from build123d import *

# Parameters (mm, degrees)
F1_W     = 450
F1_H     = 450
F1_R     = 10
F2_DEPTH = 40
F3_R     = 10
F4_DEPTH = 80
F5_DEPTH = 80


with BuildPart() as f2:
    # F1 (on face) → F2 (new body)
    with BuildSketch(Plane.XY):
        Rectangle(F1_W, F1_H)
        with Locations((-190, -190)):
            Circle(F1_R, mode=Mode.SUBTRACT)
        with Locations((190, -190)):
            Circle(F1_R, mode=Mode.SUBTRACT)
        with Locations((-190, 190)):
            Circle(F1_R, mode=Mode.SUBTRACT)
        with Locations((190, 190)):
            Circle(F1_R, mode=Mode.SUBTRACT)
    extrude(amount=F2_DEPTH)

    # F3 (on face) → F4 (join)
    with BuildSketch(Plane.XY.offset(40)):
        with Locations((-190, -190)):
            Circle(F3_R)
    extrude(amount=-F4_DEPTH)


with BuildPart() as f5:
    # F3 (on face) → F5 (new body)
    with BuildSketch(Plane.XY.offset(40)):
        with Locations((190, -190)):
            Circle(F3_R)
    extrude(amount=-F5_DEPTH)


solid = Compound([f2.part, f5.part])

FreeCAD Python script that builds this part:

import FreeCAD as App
import Part
import Sketcher

doc = App.newDocument("Part")
params = doc.addObject("Spreadsheet::Sheet", "Params")
for row, (alias, value) in enumerate([
    ("sketch1_diameter", "20 mm"),
    ("sketch1_width", "450 mm"),
    ("pad1_length", "40 mm"),
    ("sketch2_diameter", "20 mm"),
    ("pad2_length", "80 mm"),
    ("sketch3_diameter", "20 mm"),
    ("pad3_length", "80 mm"),
], start=1):
    params.set(f"A{row}", alias)
    params.set(f"B{row}", "=" + value)
    params.setAlias(f"B{row}", alias)

body = doc.addObject("PartDesign::Body", "Body")

# Sketch on XY plane
sketch1 = body.newObject("Sketcher::SketchObject", "Sketch")
sketch1.AttachmentSupport = (doc.getObject("XY_Plane"), [""])
sketch1.MapMode = "FlatFace"
sketch1.addGeometry([
    Part.LineSegment(App.Vector(-225, 225, 0), App.Vector(-225, -225, 0)),  # 0
    Part.LineSegment(App.Vector(-225, -225, 0), App.Vector(225, -225, 0)),  # 1
    Part.LineSegment(App.Vector(225, -225, 0), App.Vector(225, 225, 0)),  # 2
    Part.LineSegment(App.Vector(225, 225, 0), App.Vector(-225, 225, 0)),  # 3
    Part.Circle(App.Vector(-190, -190, 0), App.Vector(0, 0, 1), 10),  # 4
    Part.Circle(App.Vector(190, -190, 0), App.Vector(0, 0, 1), 10),  # 5
    Part.Circle(App.Vector(-190, 190, 0), App.Vector(0, 0, 1), 10),  # 6
    Part.Circle(App.Vector(190, 190, 0), App.Vector(0, 0, 1), 10),  # 7
], False)
sketch1.addConstraint([
    Sketcher.Constraint("Coincident", 0, 2, 1, 1),
    Sketcher.Constraint("Coincident", 1, 2, 2, 1),
    Sketcher.Constraint("Coincident", 2, 2, 3, 1),
    Sketcher.Constraint("Coincident", 3, 2, 0, 1),
    Sketcher.Constraint("Vertical", 0),
    Sketcher.Constraint("Horizontal", 1),
    Sketcher.Constraint("Vertical", 2),
    Sketcher.Constraint("Horizontal", 3),
    Sketcher.Constraint("Equal", 4, 5),
    Sketcher.Constraint("Equal", 5, 6),
    Sketcher.Constraint("Equal", 6, 7),
    Sketcher.Constraint("Symmetric", 5, 3, 6, 3, -1, 1),
    Sketcher.Constraint("Symmetric", 4, 3, 7, 3, -1, 1),
    Sketcher.Constraint("Symmetric", 0, 2, 2, 2, -1, 1),
    Sketcher.Constraint("Symmetric", 4, 3, 5, 3, -2),
    Sketcher.Constraint("Equal", 3, 0),
    Sketcher.Constraint("Diameter", 4, 20.0),
    Sketcher.Constraint("DistanceX", 1, 1, 1, 2, 450.0),
    Sketcher.Constraint("DistanceX", 4, 3, -1, 1, 190.0),
    Sketcher.Constraint("DistanceY", 4, 3, -1, 1, 190.0),
])
sketch1.setExpression("Constraints[16]", "Params.sketch1_diameter")
sketch1.setExpression("Constraints[17]", "Params.sketch1_width")
pad1 = body.newObject("PartDesign::Pad", "Pad")
pad1.Profile = sketch1
pad1.setExpression("Length", "Params.pad1_length")

# Sketch on XY plane
sketch2 = body.newObject("Sketcher::SketchObject", "Sketch001")
sketch2.AttachmentSupport = (doc.getObject("XY_Plane"), [""])
sketch2.MapMode = "FlatFace"
sketch2.AttachmentOffset = App.Placement(App.Vector(0, 0, 40), App.Rotation())
sketch2.addGeometry(Part.Circle(App.Vector(-190, -190, 0), App.Vector(0, 0, 1), 10), False)
sketch2.addConstraint([
    Sketcher.Constraint("Diameter", 0, 20.0),
    Sketcher.Constraint("DistanceX", 0, 3, -1, 1, 190.0),
    Sketcher.Constraint("DistanceY", 0, 3, -1, 1, 190.0),
])
sketch2.setExpression("Constraints[0]", "Params.sketch2_diameter")
pad2 = body.newObject("PartDesign::Pad", "Pad001")
pad2.Profile = sketch2
pad2.setExpression("Length", "Params.pad2_length")
pad2.Reversed = True
body2 = doc.addObject("PartDesign::Body", "Body001")

# Sketch on XY plane
sketch3 = body2.newObject("Sketcher::SketchObject", "Sketch002")
sketch3.AttachmentSupport = (doc.getObject("XY_Plane001"), [""])
sketch3.MapMode = "FlatFace"
sketch3.AttachmentOffset = App.Placement(App.Vector(0, 0, 40), App.Rotation())
sketch3.addGeometry(Part.Circle(App.Vector(190, -190, 0), App.Vector(0, 0, 1), 10), False)
sketch3.addConstraint([
    Sketcher.Constraint("Diameter", 0, 20.0),
    Sketcher.Constraint("DistanceX", -1, 1, 0, 3, 190.0),
    Sketcher.Constraint("DistanceY", 0, 3, -1, 1, 190.0),
])
sketch3.setExpression("Constraints[0]", "Params.sketch3_diameter")
pad3 = body2.newObject("PartDesign::Pad", "Pad002")
pad3.Profile = sketch3
pad3.setExpression("Length", "Params.pad3_length")
pad3.Reversed = True

doc.recompute()
